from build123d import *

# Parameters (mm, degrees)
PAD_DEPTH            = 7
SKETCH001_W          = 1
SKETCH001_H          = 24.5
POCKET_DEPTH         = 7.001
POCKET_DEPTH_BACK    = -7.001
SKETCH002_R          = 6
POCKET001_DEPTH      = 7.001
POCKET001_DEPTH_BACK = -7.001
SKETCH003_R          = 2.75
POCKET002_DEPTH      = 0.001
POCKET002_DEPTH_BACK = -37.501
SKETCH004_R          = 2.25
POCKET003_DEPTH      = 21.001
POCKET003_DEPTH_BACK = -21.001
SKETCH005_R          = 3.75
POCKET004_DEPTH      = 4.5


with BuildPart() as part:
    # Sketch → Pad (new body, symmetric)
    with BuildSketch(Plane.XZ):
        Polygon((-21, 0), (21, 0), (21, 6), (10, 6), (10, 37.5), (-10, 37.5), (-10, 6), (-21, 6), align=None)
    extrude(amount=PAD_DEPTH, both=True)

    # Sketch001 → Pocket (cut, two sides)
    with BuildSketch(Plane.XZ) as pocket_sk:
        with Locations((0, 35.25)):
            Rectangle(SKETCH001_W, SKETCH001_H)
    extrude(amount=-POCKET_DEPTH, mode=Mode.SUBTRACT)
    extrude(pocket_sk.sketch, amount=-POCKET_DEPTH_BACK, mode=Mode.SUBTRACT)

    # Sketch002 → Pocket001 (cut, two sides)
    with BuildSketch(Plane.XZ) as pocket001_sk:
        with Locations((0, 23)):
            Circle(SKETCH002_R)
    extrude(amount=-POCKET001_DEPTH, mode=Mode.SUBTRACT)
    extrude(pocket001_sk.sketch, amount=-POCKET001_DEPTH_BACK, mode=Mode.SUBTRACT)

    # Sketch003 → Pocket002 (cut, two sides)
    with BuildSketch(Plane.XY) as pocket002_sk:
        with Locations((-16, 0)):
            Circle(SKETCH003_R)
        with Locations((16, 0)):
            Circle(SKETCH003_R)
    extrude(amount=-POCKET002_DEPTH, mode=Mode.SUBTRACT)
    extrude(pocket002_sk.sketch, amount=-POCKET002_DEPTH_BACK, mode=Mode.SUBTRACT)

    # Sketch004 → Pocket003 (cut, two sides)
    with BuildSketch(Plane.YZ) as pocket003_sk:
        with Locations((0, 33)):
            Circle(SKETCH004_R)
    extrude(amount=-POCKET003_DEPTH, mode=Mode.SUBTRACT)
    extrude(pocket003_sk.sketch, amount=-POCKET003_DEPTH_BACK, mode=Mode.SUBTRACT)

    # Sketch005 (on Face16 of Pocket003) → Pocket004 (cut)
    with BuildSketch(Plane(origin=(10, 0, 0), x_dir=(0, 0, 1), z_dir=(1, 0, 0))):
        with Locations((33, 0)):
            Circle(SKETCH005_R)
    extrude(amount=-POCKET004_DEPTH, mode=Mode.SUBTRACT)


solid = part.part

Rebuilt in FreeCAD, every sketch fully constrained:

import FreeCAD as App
import Part
import Sketcher

V = App.Vector

doc = App.newDocument("Part")
body = doc.addObject("PartDesign::Body", "Body")

sketch1 = doc.addObject("Sketcher::SketchObject", "Sketch")
body.addObject(sketch1)
sketch1.AttachmentSupport = (doc.XZ_Plane, [""])
sketch1.MapMode = "FlatFace"
sketch1.addGeometry(Part.LineSegment(V(-21, 0, 0), V(21, 0, 0)), False)
sketch1.addGeometry(Part.LineSegment(V(21, 0, 0), V(21, 6, 0)), False)
sketch1.addGeometry(Part.LineSegment(V(21, 6, 0), V(10, 6, 0)), False)
sketch1.addGeometry(Part.LineSegment(V(10, 6, 0), V(10, 37.5, 0)), False)
sketch1.addGeometry(Part.LineSegment(V(10, 37.5, 0), V(-10, 37.5, 0)), False)
sketch1.addGeometry(Part.LineSegment(V(-10, 37.5, 0), V(-10, 6, 0)), False)
sketch1.addGeometry(Part.LineSegment(V(-10, 6, 0), V(-21, 6, 0)), False)
sketch1.addGeometry(Part.LineSegment(V(-21, 6, 0), V(-21, 0, 0)), False)
sketch1.addConstraint(Sketcher.Constraint("Coincident", 0, 2, 1, 1))
sketch1.addConstraint(Sketcher.Constraint("Coincident", 1, 2, 2, 1))
sketch1.addConstraint(Sketcher.Constraint("Coincident", 2, 2, 3, 1))
sketch1.addConstraint(Sketcher.Constraint("Coincident", 3, 2, 4, 1))
sketch1.addConstraint(Sketcher.Constraint("Coincident", 4, 2, 5, 1))
sketch1.addConstraint(Sketcher.Constraint("Coincident", 5, 2, 6, 1))
sketch1.addConstraint(Sketcher.Constraint("Coincident", 6, 2, 7, 1))
sketch1.addConstraint(Sketcher.Constraint("Coincident", 7, 2, 0, 1))
sketch1.addConstraint(Sketcher.Constraint("Horizontal", 0))
sketch1.addConstraint(Sketcher.Constraint("Vertical", 1))
sketch1.addConstraint(Sketcher.Constraint("Horizontal", 2))
sketch1.addConstraint(Sketcher.Constraint("Vertical", 3))
sketch1.addConstraint(Sketcher.Constraint("Horizontal", 4))
sketch1.addConstraint(Sketcher.Constraint("Vertical", 5))
sketch1.addConstraint(Sketcher.Constraint("Horizontal", 6))
sketch1.addConstraint(Sketcher.Constraint("Vertical", 7))
sketch1.addConstraint(Sketcher.Constraint("Symmetric", 0, 2, 7, 2, -1, 1))
sketch1.addConstraint(Sketcher.Constraint("Symmetric", 2, 2, 5, 2, -2))
sketch1.addConstraint(Sketcher.Constraint("DistanceX", 0, 1, 0, 2, 42.0))
sketch1.addConstraint(Sketcher.Constraint("DistanceX", 2, 2, 2, 1, 11.0))
sketch1.addConstraint(Sketcher.Constraint("DistanceY", 1, 1, 1, 2, 6.0))
sketch1.addConstraint(Sketcher.Constraint("DistanceY", 3, 1, 3, 2, 31.5))
pad1 = doc.addObject("PartDesign::Pad", "Pad")
body.addObject(pad1)
pad1.Profile = sketch1
pad1.Length = 14
pad1.Midplane = True

sketch2 = doc.addObject("Sketcher::SketchObject", "Sketch001")
body.addObject(sketch2)
sketch2.AttachmentSupport = (doc.XZ_Plane, [""])
sketch2.MapMode = "FlatFace"
sketch2.addGeometry(Part.LineSegment(V(-0.5, 47.5, 0), V(-0.5, 23, 0)), False)
sketch2.addGeometry(Part.LineSegment(V(-0.5, 23, 0), V(0.5, 23, 0)), False)
sketch2.addGeometry(Part.LineSegment(V(0.5, 23, 0), V(0.5, 47.5, 0)), False)
sketch2.addGeometry(Part.LineSegment(V(0.5, 47.5, 0), V(-0.5, 47.5, 0)), False)
sketch2.addConstraint(Sketcher.Constraint("Coincident", 0, 2, 1, 1))
sketch2.addConstraint(Sketcher.Constraint("Coincident", 1, 2, 2, 1))
sketch2.addConstraint(Sketcher.Constraint("Coincident", 2, 2, 3, 1))
sketch2.addConstraint(Sketcher.Constraint("Coincident", 3, 2, 0, 1))
sketch2.addConstraint(Sketcher.Constraint("Vertical", 0))
sketch2.addConstraint(Sketcher.Constraint("Horizontal", 1))
sketch2.addConstraint(Sketcher.Constraint("Vertical", 2))
sketch2.addConstraint(Sketcher.Constraint("Horizontal", 3))
sketch2.addConstraint(Sketcher.Constraint("DistanceX", 1, 1, 1, 2, 1.0))
sketch2.addConstraint(Sketcher.Constraint("DistanceY", 0, 2, 0, 1, 24.5))
sketch2.addConstraint(Sketcher.Constraint("DistanceY", -1, 1, 0, 2, 23.0))
sketch2.addConstraint(Sketcher.Constraint("DistanceX", 0, 2, -1, 1, 0.5))
pocket1 = doc.addObject("PartDesign::Pocket", "Pocket")
body.addObject(pocket1)
pocket1.Profile = sketch2
pocket1.Type = "ThroughAll"
pocket1.Midplane = True

sketch3 = doc.addObject("Sketcher::SketchObject", "Sketch002")
body.addObject(sketch3)
sketch3.AttachmentSupport = (doc.XZ_Plane, [""])
sketch3.MapMode = "FlatFace"
sketch3.addGeometry(Part.Circle(V(0, 23, 0), V(0, 0, 1), 6), False)
sketch3.addConstraint(Sketcher.Constraint("PointOnObject", 0, 3, -2))
sketch3.addConstraint(Sketcher.Constraint("Diameter", 0, 12.0))
sketch3.addConstraint(Sketcher.Constraint("DistanceY", -1, 1, 0, 3, 23.0))
pocket2 = doc.addObject("PartDesign::Pocket", "Pocket001")
body.addObject(pocket2)
pocket2.Profile = sketch3
pocket2.Type = "ThroughAll"
pocket2.Midplane = True

sketch4 = doc.addObject("Sketcher::SketchObject", "Sketch003")
body.addObject(sketch4)
sketch4.AttachmentSupport = (doc.XY_Plane, [""])
sketch4.MapMode = "FlatFace"
sketch4.addGeometry(Part.Circle(V(-16, 0, 0), V(0, 0, 1), 2.75), False)
sketch4.addGeometry(Part.Circle(V(16, 0, 0), V(0, 0, 1), 2.75), False)
sketch4.addConstraint(Sketcher.Constraint("Equal", 0, 1))
sketch4.addConstraint(Sketcher.Constraint("Symmetric", 0, 3, 1, 3, -1, 1))
sketch4.addConstraint(Sketcher.Constraint("PointOnObject", 0, 3, -1))
sketch4.addConstraint(Sketcher.Constraint("Diameter", 0, 5.5))
sketch4.addConstraint(Sketcher.Constraint("DistanceX", 0, 3, -1, 1, 16.0))
pocket3 = doc.addObject("PartDesign::Pocket", "Pocket002")
body.addObject(pocket3)
pocket3.Profile = sketch4
pocket3.Type = "ThroughAll"
pocket3.Midplane = True

sketch5 = doc.addObject("Sketcher::SketchObject", "Sketch004")
body.addObject(sketch5)
sketch5.AttachmentSupport = (doc.YZ_Plane, [""])
sketch5.MapMode = "FlatFace"
sketch5.addGeometry(Part.Circle(V(0, 33, 0), V(0, 0, 1), 2.25), False)
sketch5.addConstraint(Sketcher.Constraint("PointOnObject", 0, 3, -2))
sketch5.addConstraint(Sketcher.Constraint("Diameter", 0, 4.5))
sketch5.addConstraint(Sketcher.Constraint("DistanceY", -1, 1, 0, 3, 33.0))
pocket4 = doc.addObject("PartDesign::Pocket", "Pocket003")
body.addObject(pocket4)
pocket4.Profile = sketch5
pocket4.Type = "ThroughAll"
pocket4.Midplane = True

sketch6 = doc.addObject("Sketcher::SketchObject", "Sketch005")
body.addObject(sketch6)
sketch6.AttachmentSupport = (doc.YZ_Plane, [""])
sketch6.MapMode = "FlatFace"
sketch6.AttachmentOffset = App.Placement(V(0, 0, 10), App.Rotation())
sketch6.addGeometry(Part.Circle(V(0, 33, 0), V(0, 0, 1), 3.75), False)
sketch6.addConstraint(Sketcher.Constraint("PointOnObject", 0, 3, -2))
sketch6.addConstraint(Sketcher.Constraint("Diameter", 0, 7.5))
sketch6.addConstraint(Sketcher.Constraint("DistanceY", -1, 1, 0, 3, 33.0))
pocket5 = doc.addObject("PartDesign::Pocket", "Pocket004")
body.addObject(pocket5)
pocket5.Profile = sketch6
pocket5.Length = 4.5

doc.recompute()
